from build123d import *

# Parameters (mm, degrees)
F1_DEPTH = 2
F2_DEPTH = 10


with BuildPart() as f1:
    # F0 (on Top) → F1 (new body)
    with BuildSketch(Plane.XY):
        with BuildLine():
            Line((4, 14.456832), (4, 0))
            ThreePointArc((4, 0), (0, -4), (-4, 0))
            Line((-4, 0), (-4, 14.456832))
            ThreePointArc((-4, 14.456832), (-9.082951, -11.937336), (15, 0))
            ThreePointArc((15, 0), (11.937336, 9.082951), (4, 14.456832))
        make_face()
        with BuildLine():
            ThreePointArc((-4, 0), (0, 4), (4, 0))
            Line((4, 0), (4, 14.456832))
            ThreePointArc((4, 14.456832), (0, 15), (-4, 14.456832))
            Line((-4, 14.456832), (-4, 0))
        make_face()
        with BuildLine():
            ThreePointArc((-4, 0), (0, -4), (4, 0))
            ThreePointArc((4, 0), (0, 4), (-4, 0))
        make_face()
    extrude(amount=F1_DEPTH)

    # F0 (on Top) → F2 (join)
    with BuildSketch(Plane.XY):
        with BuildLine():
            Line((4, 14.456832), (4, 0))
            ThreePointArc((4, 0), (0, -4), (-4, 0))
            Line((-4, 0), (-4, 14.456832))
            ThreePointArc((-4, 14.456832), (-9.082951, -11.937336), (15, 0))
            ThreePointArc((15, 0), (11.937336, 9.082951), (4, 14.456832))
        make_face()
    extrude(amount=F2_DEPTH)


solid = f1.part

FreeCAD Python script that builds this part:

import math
import FreeCAD as App
import Part
import Sketcher

doc = App.newDocument("Part")
body = doc.addObject("PartDesign::Body", "Body")

# Sketch on XY plane
sketch1 = body.newObject("Sketcher::SketchObject", "Sketch")
sketch1.AttachmentSupport = (doc.getObject("XY_Plane"), [""])
sketch1.MapMode = "FlatFace"
sketch1.addGeometry([
    Part.ArcOfCircle(Part.Circle(App.Vector(0, 0, 0), App.Vector(0, 0, 1), 15), math.radians(105), math.radians(360)),
    Part.ArcOfCircle(Part.Circle(App.Vector(0, 0, 0), App.Vector(0, 0, 1), 15), math.radians(0), math.radians(75)),
    Part.ArcOfCircle(Part.Circle(App.Vector(0, 0, 0), App.Vector(0, 0, 1), 15), math.radians(75), math.radians(105)),
], False)
sketch1.addConstraint([
    Sketcher.Constraint("Tangent", 0, 2, 1, 1),
    Sketcher.Constraint("Tangent", 1, 2, 2, 1),
    Sketcher.Constraint("Tangent", 2, 2, 0, 1),
    Sketcher.Constraint("Coincident", 0, 3, -1, 1),
    Sketcher.Constraint("PointOnObject", 0, 2, -1),
    Sketcher.Constraint("Horizontal", 1, 2, 2, 2),
    Sketcher.Constraint("Radius", 0, 15.0),
    Sketcher.Constraint("DistanceX", -1, 1, 1, 2, 4.0),
])
pad1 = body.newObject("PartDesign::Pad", "Pad")
pad1.Profile = sketch1
pad1.Length = 2

# Sketch on XY plane
sketch2 = body.newObject("Sketcher::SketchObject", "Sketch001")
sketch2.AttachmentSupport = (doc.getObject("XY_Plane"), [""])
sketch2.MapMode = "FlatFace"
sketch2.addGeometry([
    Part.LineSegment(App.Vector(4, 14.5, 0), App.Vector(4, 0, 0)),  # 0
    Part.ArcOfCircle(Part.Circle(App.Vector(0, 0, 0), App.Vector(0, 0, 1), 4), math.radians(180), math.radians(360)),  # 1
    Part.LineSegment(App.Vector(-4, 0, 0), App.Vector(-4, 14.5, 0)),  # 2
    Part.ArcOfCircle(Part.Circle(App.Vector(0, 0, 0), App.Vector(0, 0, 1), 15), math.radians(105), math.radians(360)),  # 3
    Part.ArcOfCircle(Part.Circle(App.Vector(0, 0, 0), App.Vector(0, 0, 1), 15), math.radians(0), math.radians(75)),  # 4
], False)
sketch2.addConstraint([
    Sketcher.Constraint("Tangent", 0, 2, 1, 2),
    Sketcher.Constraint("Tangent", 1, 1, 2, 1),
    Sketcher.Constraint("Coincident", 2, 2, 3, 1),
    Sketcher.Constraint("Tangent", 3, 2, 4, 1),
    Sketcher.Constraint("Coincident", 4, 2, 0, 1),
    Sketcher.Constraint("Vertical", 0),
    Sketcher.Constraint("Vertical", 2),
    Sketcher.Constraint("Coincident", 1, 3, -1, 1),
    Sketcher.Constraint("Coincident", 3, 3, -1, 1),
    Sketcher.Constraint("Equal", 3, 4),
    Sketcher.Constraint("PointOnObject", 3, 2, -1),
    Sketcher.Constraint("Radius", 1, 4.0),
    Sketcher.Constraint("Radius", 3, 15.0),
])
pad2 = body.newObject("PartDesign::Pad", "Pad001")
pad2.Profile = sketch2
pad2.Length = 10

doc.recompute()
